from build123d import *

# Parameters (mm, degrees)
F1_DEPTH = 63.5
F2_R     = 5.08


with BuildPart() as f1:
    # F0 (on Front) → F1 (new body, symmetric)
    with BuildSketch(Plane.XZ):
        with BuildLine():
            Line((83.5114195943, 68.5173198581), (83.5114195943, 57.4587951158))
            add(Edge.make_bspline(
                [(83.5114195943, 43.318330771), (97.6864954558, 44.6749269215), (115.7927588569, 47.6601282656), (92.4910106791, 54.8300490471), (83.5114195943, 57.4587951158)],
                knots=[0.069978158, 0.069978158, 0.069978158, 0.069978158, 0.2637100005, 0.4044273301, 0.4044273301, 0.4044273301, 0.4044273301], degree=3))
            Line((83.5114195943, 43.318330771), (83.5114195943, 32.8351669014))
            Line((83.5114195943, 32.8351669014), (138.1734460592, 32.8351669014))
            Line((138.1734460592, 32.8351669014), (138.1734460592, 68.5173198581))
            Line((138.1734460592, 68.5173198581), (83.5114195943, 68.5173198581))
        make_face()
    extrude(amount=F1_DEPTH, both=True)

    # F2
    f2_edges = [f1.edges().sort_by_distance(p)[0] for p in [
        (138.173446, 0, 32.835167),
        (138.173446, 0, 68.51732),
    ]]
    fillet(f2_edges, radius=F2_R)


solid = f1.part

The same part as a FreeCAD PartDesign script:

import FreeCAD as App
import Part
import Sketcher
Q = App.Units.Quantity


def edges_at(feature, points):
    """Names of the edges that pass closest to the given points."""
    edges = feature.Shape.Edges
    near = lambda p: min(range(len(edges)), key=lambda i: edges[i].distToShape(Part.Vertex(*p))[0])
    return sorted({f"Edge{near(p) + 1}" for p in points})

doc = App.newDocument("Part")
body = doc.addObject("PartDesign::Body", "Body")

# Sketch on XZ plane
sketch1 = body.newObject("Sketcher::SketchObject", "Sketch")
sketch1.AttachmentSupport = (doc.getObject("XZ_Plane"), [""])
sketch1.MapMode = "FlatFace"
sketch1.addGeometry(Part.LineSegment(App.Vector(83.51142, 68.51732, 0), App.Vector(83.51142, 57.458795, 0)), False)
sketch1.addGeometry(Part.BSplineCurve([App.Vector(83.51142, 43.318331, 0), App.Vector(97.686495, 44.674927, 0), App.Vector(115.792759, 47.660128, 0), App.Vector(92.491011, 54.830049, 0), App.Vector(83.51142, 57.458795, 0)], [4, 1, 4], [0.069978158, 0.26371, 0.40442733], False, 3, [1, 1, 1, 1, 1], False), False)
sketch1.addGeometry(Part.LineSegment(App.Vector(83.51142, 43.318331, 0), App.Vector(83.51142, 32.835167, 0)), False)
sketch1.addGeometry(Part.LineSegment(App.Vector(83.51142, 32.835167, 0), App.Vector(138.173446, 32.835167, 0)), False)
sketch1.addGeometry(Part.LineSegment(App.Vector(138.173446, 32.835167, 0), App.Vector(138.173446, 68.51732, 0)), False)
sketch1.addGeometry(Part.LineSegment(App.Vector(138.173446, 68.51732, 0), App.Vector(83.51142, 68.51732, 0)), False)
sketch1.addConstraint(Sketcher.Constraint("Block", 1))
sketch1.addConstraint(Sketcher.Constraint("Coincident", 0, 2, 1, 2))
sketch1.addConstraint(Sketcher.Constraint("Coincident", 1, 1, 2, 1))
sketch1.addConstraint(Sketcher.Constraint("Coincident", 2, 2, 3, 1))
sketch1.addConstraint(Sketcher.Constraint("Coincident", 3, 2, 4, 1))
sketch1.addConstraint(Sketcher.Constraint("Coincident", 4, 2, 5, 1))
sketch1.addConstraint(Sketcher.Constraint("Coincident", 5, 2, 0, 1))
sketch1.addConstraint(Sketcher.Constraint("Vertical", 0))
sketch1.addConstraint(Sketcher.Constraint("Vertical", 2))
sketch1.addConstraint(Sketcher.Constraint("Horizontal", 3))
sketch1.addConstraint(Sketcher.Constraint("Vertical", 4))
sketch1.addConstraint(Sketcher.Constraint("Horizontal", 5))
sketch1.addConstraint(Sketcher.Constraint("DistanceX", 3, 1, 3, 2, 54.662026))
sketch1.addConstraint(Sketcher.Constraint("DistanceY", 0, 2, 0, 1, 11.058525))
sketch1.addConstraint(Sketcher.Constraint("DistanceY", 2, 2, 2, 1, 10.483164))
pad1 = body.newObject("PartDesign::Pad", "Pad")
pad1.Profile = sketch1
pad1.Length = Q("5 in")
pad1.Midplane = True
doc.recompute()

fillet = body.newObject("PartDesign::Fillet", "Fillet")
fillet.Base = (pad1, edges_at(pad1, [(138.173, 0, 32.835), (138.173, 0, 68.517)]))
fillet.Radius = Q("0.2 in")

doc.recompute()
